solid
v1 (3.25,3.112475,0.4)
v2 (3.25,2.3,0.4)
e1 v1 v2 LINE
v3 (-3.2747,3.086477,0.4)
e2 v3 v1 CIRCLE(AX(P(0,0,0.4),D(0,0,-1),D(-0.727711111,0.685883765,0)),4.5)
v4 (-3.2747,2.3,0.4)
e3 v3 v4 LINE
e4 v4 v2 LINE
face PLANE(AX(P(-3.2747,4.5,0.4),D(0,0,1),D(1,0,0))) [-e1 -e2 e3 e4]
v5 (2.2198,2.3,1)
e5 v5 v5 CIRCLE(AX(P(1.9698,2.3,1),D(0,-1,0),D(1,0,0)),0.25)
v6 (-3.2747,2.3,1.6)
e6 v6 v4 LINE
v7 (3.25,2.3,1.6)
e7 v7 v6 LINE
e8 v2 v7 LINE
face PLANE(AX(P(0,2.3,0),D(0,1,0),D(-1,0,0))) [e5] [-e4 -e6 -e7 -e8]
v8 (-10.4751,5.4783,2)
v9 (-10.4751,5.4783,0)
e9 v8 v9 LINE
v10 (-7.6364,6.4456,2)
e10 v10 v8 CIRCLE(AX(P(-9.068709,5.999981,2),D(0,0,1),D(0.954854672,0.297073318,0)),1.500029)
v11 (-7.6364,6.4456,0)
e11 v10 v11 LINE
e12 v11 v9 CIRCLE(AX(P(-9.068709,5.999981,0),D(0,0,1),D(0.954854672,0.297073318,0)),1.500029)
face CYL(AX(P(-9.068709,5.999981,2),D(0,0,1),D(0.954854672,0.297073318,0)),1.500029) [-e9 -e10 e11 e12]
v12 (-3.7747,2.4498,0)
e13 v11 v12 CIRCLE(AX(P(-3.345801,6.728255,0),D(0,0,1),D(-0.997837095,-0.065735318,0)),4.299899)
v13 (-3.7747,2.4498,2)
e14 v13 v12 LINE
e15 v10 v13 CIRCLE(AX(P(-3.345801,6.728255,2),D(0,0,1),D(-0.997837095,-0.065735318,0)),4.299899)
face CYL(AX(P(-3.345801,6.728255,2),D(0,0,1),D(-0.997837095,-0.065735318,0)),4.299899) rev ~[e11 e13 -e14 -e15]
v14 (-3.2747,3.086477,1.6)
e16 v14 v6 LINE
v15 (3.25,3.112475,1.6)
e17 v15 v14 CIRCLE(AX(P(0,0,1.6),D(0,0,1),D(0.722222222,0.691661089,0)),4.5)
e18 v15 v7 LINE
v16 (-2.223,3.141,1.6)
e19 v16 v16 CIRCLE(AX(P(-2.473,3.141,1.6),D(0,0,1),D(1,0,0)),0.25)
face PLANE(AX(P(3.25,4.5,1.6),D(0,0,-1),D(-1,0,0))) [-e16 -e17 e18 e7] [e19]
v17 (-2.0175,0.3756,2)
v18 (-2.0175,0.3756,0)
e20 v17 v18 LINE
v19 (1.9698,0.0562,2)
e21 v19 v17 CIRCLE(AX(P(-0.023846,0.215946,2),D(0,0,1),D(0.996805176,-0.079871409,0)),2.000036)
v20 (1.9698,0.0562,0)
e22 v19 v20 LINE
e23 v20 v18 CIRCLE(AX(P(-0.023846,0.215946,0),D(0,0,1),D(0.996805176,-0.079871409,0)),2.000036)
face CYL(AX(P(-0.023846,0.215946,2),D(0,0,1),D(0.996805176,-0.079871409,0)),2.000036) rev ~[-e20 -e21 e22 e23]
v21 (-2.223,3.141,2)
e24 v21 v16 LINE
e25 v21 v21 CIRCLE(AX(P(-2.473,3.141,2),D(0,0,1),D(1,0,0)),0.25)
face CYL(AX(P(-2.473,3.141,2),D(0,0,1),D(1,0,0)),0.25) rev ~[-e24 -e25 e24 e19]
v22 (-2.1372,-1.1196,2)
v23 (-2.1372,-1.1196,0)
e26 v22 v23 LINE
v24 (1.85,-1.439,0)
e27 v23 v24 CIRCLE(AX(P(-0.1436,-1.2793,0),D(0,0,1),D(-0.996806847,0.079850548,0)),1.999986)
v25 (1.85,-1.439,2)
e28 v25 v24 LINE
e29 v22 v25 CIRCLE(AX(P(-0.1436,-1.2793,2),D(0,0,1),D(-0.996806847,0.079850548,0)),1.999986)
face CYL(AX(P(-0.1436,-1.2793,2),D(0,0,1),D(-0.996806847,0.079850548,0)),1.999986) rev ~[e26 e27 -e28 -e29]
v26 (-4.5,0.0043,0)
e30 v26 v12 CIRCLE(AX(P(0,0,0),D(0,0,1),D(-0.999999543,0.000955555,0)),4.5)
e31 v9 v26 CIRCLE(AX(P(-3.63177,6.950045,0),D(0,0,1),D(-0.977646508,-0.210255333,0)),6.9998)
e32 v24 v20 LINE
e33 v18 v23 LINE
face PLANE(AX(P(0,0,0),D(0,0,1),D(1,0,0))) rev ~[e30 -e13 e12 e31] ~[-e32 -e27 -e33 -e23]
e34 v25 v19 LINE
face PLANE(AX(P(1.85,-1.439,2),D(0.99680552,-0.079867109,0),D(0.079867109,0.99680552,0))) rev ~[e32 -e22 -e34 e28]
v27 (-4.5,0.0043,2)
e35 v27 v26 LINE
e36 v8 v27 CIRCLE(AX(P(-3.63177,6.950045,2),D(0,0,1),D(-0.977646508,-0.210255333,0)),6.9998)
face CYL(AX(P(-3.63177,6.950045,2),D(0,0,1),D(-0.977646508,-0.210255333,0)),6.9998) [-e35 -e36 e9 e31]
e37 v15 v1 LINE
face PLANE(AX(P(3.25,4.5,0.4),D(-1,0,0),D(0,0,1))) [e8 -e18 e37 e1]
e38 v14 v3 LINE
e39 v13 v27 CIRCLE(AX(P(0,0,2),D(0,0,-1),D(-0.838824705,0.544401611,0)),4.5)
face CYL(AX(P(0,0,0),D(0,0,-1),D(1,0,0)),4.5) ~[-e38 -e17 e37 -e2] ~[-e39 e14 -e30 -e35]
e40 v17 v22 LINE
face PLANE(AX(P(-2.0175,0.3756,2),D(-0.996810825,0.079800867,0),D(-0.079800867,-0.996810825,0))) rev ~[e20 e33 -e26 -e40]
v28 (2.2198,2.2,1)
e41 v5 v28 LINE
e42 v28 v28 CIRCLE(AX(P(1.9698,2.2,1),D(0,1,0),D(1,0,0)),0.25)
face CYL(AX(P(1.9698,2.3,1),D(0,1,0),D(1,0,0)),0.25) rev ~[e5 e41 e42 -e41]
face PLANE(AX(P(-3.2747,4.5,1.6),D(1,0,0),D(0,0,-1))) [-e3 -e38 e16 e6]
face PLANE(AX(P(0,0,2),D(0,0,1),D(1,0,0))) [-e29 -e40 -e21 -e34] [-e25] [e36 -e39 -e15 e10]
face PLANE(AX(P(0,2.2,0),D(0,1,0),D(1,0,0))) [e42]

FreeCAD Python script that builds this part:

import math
import FreeCAD as App
import Part
import Sketcher

V = App.Vector
Q = App.Units.Quantity

doc = App.newDocument("Part")
body = doc.addObject("PartDesign::Body", "Body")

# Sketch on XY plane
sketch1 = body.newObject("Sketcher::SketchObject", "Sketch")
sketch1.AttachmentSupport = (doc.getObject("XY_Plane"), [""])
sketch1.MapMode = "FlatFace"
sketch1.addGeometry(Part.Circle(V(0, 0, 0), V(0, 0, 1), 4.5), False)
sketch1.addConstraint(Sketcher.Constraint("Coincident", 0, 3, -1, 1))
sketch1.addConstraint(Sketcher.Constraint("Diameter", 0, Q("9 mm")))
pad1 = body.newObject("PartDesign::Pad", "Pad")
pad1.Profile = sketch1
pad1.Length = 2

# Sketch on XY plane
sketch2 = body.newObject("Sketcher::SketchObject", "Sketch001")
sketch2.AttachmentSupport = (doc.getObject("XY_Plane"), [""])
sketch2.MapMode = "FlatFace"
sketch2.AttachmentOffset = App.Placement(V(0, 0, 2), App.Rotation())
sketch2.addGeometry(Part.ArcOfCircle(Part.Circle(V(0, 0, 0), V(0, 0, 1), 4.5), math.radians(147.016219), math.radians(179.945251)), False)
sketch2.addGeometry(Part.ArcOfCircle(Part.Circle(V(-3.3457, 6.7283, 0), V(0, 0, 1), 4.300003), math.radians(-176.230419), math.radians(-95.725841)), False)
sketch2.addGeometry(Part.ArcOfCircle(Part.Circle(V(-9.0687, 6, 0), V(0, 0, 1), 1.500014), math.radians(17.281336), math.radians(200.352189)), False)
sketch2.addGeometry(Part.ArcOfCircle(Part.Circle(V(-3.6315, 6.9502, 0), V(0, 0, 1), 7.000096), math.radians(-167.861911), math.radians(-97.127148)), False)
sketch2.addConstraint(Sketcher.Constraint("Coincident", 0, 1, 1, 2))
sketch2.addConstraint(Sketcher.Constraint("Coincident", 1, 1, 2, 1))
sketch2.addConstraint(Sketcher.Constraint("Coincident", 2, 2, 3, 1))
sketch2.addConstraint(Sketcher.Constraint("Coincident", 3, 2, 0, 2))
sketch2.addConstraint(Sketcher.Constraint("Coincident", 0, 3, -1, 1))
sketch2.addConstraint(Sketcher.Constraint("Radius", 3, Q("7 mm")))
sketch2.addConstraint(Sketcher.Constraint("Radius", 1, Q("4.3 mm")))
sketch2.addConstraint(Sketcher.Constraint("Radius", 2, Q("1.5 mm")))
sketch2.addConstraint(Sketcher.Constraint("DistanceY", -1, 1, 2, 3, Q("6 mm")))
sketch2.addConstraint(Sketcher.Constraint("Radius", 0, Q("4.5 mm")))
sketch2.addConstraint(Sketcher.Constraint("DistanceY", 2, 2, 1, 3, Q("1.25 mm")))
sketch2.addConstraint(Sketcher.Constraint("DistanceX", 2, 2, -1, 1, Q("10.475 mm")))
sketch2.addConstraint(Sketcher.Constraint("DistanceX", 2, 3, 1, 3, Q("5.723 mm")))
sketch2.addConstraint(Sketcher.Constraint("DistanceY", 1, 3, 3, 3, Q("0.222 mm")))
sketch2.addConstraint(Sketcher.Constraint("DistanceX", 0, 1, 1, 3, Q("0.429 mm")))
pad2 = body.newObject("PartDesign::Pad", "Pad001")
pad2.Profile = sketch2
pad2.Length = 2
pad2.Reversed = True

# Sketch on XY plane
sketch3 = body.newObject("Sketcher::SketchObject", "Sketch002")
sketch3.AttachmentSupport = (doc.getObject("XY_Plane"), [""])
sketch3.MapMode = "FlatFace"
sketch3.AttachmentOffset = App.Placement(V(0, 0, 2), App.Rotation())
sketch3.addGeometry(Part.ArcOfCircle(Part.Circle(V(-0.0239, 0.2159, 0), V(0, 0, 1), 2.000086), math.radians(-4.579747), math.radians(175.420025)), False)
sketch3.addGeometry(Part.LineSegment(V(-2.0175, 0.3756, 0), V(-2.1372, -1.1196, 0)), False)
sketch3.addGeometry(Part.ArcOfCircle(Part.Circle(V(-0.1436, -1.2793, 0), V(0, 0, 1), 1.999986), math.radians(175.420025), math.radians(355.420025)), False)
sketch3.addGeometry(Part.LineSegment(V(1.85, -1.439, 0), V(1.9698, 0.0562, 0)), False)
sketch3.addConstraint(Sketcher.Constraint("Tangent", 0, 2, 1, 1))
sketch3.addConstraint(Sketcher.Constraint("Tangent", 1, 2, 2, 1))
sketch3.addConstraint(Sketcher.Constraint("Tangent", 2, 2, 3, 1))
sketch3.addConstraint(Sketcher.Constraint("Tangent", 3, 2, 0, 1))
sketch3.addConstraint(Sketcher.Constraint("Equal", 0, 2))
sketch3.addConstraint(Sketcher.Constraint("Radius", 0, Q("2 mm")))
sketch3.addConstraint(Sketcher.Constraint("Distance", 1, Q("1.5 mm")))
sketch3.addConstraint(Sketcher.Constraint("Angle", 3, Q("85.419 deg")))
sketch3.addConstraint(Sketcher.Constraint("DistanceX", -1, 1, 2, 2, Q("1.85 mm")))
sketch3.addConstraint(Sketcher.Constraint("DistanceY", -1, 1, 0, 3, Q("0.216 mm")))
pocket1 = body.newObject("PartDesign::Pocket", "Pocket")
pocket1.Profile = sketch3
pocket1.Length = 2

# Sketch on XZ plane
sketch4 = body.newObject("Sketcher::SketchObject", "Sketch003")
sketch4.AttachmentSupport = (doc.getObject("XZ_Plane"), [""])
sketch4.MapMode = "FlatFace"
sketch4.AttachmentOffset = App.Placement(V(0, 0, -4.5), App.Rotation())
sketch4.addGeometry(Part.LineSegment(V(-3.2747, 1.6, 0), V(3.25, 1.6, 0)), False)
sketch4.addGeometry(Part.LineSegment(V(3.25, 1.6, 0), V(3.25, 0.4, 0)), False)
sketch4.addGeometry(Part.LineSegment(V(3.25, 0.4, 0), V(-3.2747, 0.4, 0)), False)
sketch4.addGeometry(Part.LineSegment(V(-3.2747, 0.4, 0), V(-3.2747, 1.6, 0)), False)
sketch4.addConstraint(Sketcher.Constraint("Coincident", 0, 2, 1, 1))
sketch4.addConstraint(Sketcher.Constraint("Coincident", 1, 2, 2, 1))
sketch4.addConstraint(Sketcher.Constraint("Coincident", 2, 2, 3, 1))
sketch4.addConstraint(Sketcher.Constraint("Coincident", 3, 2, 0, 1))
sketch4.addConstraint(Sketcher.Constraint("Horizontal", 0))
sketch4.addConstraint(Sketcher.Constraint("Vertical", 1))
sketch4.addConstraint(Sketcher.Constraint("Horizontal", 2))
sketch4.addConstraint(Sketcher.Constraint("Vertical", 3))
sketch4.addConstraint(Sketcher.Constraint("DistanceY", -1, 1, 1, 2, Q("0.4 mm")))
sketch4.addConstraint(Sketcher.Constraint("DistanceY", 1, 2, 1, 1, Q("1.2 mm")))
sketch4.addConstraint(Sketcher.Constraint("DistanceX", -1, 1, 0, 2, Q("3.25 mm")))
sketch4.addConstraint(Sketcher.Constraint("DistanceX", 0, 1, 0, 2, Q("6.5247 mm")))
pocket2 = body.newObject("PartDesign::Pocket", "Pocket001")
pocket2.Profile = sketch4
pocket2.Length = 2.2
pocket2.Reversed = True

# Sketch on XY plane
sketch5 = body.newObject("Sketcher::SketchObject", "Sketch004")
sketch5.AttachmentSupport = (doc.getObject("XY_Plane"), [""])
sketch5.MapMode = "FlatFace"
sketch5.AttachmentOffset = App.Placement(V(0, 0, 2), App.Rotation())
sketch5.addGeometry(Part.Circle(V(-2.473, 3.141, 0), V(0, 0, 1), 0.25), False)
sketch5.addConstraint(Sketcher.Constraint("Diameter", 0, Q("0.5 mm")))
sketch5.addConstraint(Sketcher.Constraint("DistanceX", 0, 3, -1, 1, Q("2.473 mm")))
sketch5.addConstraint(Sketcher.Constraint("DistanceY", -1, 1, 0, 3, Q("3.141 mm")))
pocket3 = body.newObject("PartDesign::Pocket", "Pocket002")
pocket3.Profile = sketch5
pocket3.Length = 0.5

# Sketch on XZ plane
sketch6 = body.newObject("Sketcher::SketchObject", "Sketch005")
sketch6.AttachmentSupport = (doc.getObject("XZ_Plane"), [""])
sketch6.MapMode = "FlatFace"
sketch6.AttachmentOffset = App.Placement(V(0, 0, -2.3), App.Rotation())
sketch6.addGeometry(Part.Circle(V(1.9698, 1, 0), V(0, 0, 1), 0.25), False)
sketch6.addConstraint(Sketcher.Constraint("Diameter", 0, Q("0.5 mm")))
sketch6.addConstraint(Sketcher.Constraint("DistanceY", -1, 1, 0, 3, Q("1 mm")))
sketch6.addConstraint(Sketcher.Constraint("DistanceX", -1, 1, 0, 3, Q("1.9698 mm")))
pocket4 = body.newObject("PartDesign::Pocket", "Pocket003")
pocket4.Profile = sketch6
pocket4.Length = 0.1
pocket4.Reversed = True

doc.recompute()
